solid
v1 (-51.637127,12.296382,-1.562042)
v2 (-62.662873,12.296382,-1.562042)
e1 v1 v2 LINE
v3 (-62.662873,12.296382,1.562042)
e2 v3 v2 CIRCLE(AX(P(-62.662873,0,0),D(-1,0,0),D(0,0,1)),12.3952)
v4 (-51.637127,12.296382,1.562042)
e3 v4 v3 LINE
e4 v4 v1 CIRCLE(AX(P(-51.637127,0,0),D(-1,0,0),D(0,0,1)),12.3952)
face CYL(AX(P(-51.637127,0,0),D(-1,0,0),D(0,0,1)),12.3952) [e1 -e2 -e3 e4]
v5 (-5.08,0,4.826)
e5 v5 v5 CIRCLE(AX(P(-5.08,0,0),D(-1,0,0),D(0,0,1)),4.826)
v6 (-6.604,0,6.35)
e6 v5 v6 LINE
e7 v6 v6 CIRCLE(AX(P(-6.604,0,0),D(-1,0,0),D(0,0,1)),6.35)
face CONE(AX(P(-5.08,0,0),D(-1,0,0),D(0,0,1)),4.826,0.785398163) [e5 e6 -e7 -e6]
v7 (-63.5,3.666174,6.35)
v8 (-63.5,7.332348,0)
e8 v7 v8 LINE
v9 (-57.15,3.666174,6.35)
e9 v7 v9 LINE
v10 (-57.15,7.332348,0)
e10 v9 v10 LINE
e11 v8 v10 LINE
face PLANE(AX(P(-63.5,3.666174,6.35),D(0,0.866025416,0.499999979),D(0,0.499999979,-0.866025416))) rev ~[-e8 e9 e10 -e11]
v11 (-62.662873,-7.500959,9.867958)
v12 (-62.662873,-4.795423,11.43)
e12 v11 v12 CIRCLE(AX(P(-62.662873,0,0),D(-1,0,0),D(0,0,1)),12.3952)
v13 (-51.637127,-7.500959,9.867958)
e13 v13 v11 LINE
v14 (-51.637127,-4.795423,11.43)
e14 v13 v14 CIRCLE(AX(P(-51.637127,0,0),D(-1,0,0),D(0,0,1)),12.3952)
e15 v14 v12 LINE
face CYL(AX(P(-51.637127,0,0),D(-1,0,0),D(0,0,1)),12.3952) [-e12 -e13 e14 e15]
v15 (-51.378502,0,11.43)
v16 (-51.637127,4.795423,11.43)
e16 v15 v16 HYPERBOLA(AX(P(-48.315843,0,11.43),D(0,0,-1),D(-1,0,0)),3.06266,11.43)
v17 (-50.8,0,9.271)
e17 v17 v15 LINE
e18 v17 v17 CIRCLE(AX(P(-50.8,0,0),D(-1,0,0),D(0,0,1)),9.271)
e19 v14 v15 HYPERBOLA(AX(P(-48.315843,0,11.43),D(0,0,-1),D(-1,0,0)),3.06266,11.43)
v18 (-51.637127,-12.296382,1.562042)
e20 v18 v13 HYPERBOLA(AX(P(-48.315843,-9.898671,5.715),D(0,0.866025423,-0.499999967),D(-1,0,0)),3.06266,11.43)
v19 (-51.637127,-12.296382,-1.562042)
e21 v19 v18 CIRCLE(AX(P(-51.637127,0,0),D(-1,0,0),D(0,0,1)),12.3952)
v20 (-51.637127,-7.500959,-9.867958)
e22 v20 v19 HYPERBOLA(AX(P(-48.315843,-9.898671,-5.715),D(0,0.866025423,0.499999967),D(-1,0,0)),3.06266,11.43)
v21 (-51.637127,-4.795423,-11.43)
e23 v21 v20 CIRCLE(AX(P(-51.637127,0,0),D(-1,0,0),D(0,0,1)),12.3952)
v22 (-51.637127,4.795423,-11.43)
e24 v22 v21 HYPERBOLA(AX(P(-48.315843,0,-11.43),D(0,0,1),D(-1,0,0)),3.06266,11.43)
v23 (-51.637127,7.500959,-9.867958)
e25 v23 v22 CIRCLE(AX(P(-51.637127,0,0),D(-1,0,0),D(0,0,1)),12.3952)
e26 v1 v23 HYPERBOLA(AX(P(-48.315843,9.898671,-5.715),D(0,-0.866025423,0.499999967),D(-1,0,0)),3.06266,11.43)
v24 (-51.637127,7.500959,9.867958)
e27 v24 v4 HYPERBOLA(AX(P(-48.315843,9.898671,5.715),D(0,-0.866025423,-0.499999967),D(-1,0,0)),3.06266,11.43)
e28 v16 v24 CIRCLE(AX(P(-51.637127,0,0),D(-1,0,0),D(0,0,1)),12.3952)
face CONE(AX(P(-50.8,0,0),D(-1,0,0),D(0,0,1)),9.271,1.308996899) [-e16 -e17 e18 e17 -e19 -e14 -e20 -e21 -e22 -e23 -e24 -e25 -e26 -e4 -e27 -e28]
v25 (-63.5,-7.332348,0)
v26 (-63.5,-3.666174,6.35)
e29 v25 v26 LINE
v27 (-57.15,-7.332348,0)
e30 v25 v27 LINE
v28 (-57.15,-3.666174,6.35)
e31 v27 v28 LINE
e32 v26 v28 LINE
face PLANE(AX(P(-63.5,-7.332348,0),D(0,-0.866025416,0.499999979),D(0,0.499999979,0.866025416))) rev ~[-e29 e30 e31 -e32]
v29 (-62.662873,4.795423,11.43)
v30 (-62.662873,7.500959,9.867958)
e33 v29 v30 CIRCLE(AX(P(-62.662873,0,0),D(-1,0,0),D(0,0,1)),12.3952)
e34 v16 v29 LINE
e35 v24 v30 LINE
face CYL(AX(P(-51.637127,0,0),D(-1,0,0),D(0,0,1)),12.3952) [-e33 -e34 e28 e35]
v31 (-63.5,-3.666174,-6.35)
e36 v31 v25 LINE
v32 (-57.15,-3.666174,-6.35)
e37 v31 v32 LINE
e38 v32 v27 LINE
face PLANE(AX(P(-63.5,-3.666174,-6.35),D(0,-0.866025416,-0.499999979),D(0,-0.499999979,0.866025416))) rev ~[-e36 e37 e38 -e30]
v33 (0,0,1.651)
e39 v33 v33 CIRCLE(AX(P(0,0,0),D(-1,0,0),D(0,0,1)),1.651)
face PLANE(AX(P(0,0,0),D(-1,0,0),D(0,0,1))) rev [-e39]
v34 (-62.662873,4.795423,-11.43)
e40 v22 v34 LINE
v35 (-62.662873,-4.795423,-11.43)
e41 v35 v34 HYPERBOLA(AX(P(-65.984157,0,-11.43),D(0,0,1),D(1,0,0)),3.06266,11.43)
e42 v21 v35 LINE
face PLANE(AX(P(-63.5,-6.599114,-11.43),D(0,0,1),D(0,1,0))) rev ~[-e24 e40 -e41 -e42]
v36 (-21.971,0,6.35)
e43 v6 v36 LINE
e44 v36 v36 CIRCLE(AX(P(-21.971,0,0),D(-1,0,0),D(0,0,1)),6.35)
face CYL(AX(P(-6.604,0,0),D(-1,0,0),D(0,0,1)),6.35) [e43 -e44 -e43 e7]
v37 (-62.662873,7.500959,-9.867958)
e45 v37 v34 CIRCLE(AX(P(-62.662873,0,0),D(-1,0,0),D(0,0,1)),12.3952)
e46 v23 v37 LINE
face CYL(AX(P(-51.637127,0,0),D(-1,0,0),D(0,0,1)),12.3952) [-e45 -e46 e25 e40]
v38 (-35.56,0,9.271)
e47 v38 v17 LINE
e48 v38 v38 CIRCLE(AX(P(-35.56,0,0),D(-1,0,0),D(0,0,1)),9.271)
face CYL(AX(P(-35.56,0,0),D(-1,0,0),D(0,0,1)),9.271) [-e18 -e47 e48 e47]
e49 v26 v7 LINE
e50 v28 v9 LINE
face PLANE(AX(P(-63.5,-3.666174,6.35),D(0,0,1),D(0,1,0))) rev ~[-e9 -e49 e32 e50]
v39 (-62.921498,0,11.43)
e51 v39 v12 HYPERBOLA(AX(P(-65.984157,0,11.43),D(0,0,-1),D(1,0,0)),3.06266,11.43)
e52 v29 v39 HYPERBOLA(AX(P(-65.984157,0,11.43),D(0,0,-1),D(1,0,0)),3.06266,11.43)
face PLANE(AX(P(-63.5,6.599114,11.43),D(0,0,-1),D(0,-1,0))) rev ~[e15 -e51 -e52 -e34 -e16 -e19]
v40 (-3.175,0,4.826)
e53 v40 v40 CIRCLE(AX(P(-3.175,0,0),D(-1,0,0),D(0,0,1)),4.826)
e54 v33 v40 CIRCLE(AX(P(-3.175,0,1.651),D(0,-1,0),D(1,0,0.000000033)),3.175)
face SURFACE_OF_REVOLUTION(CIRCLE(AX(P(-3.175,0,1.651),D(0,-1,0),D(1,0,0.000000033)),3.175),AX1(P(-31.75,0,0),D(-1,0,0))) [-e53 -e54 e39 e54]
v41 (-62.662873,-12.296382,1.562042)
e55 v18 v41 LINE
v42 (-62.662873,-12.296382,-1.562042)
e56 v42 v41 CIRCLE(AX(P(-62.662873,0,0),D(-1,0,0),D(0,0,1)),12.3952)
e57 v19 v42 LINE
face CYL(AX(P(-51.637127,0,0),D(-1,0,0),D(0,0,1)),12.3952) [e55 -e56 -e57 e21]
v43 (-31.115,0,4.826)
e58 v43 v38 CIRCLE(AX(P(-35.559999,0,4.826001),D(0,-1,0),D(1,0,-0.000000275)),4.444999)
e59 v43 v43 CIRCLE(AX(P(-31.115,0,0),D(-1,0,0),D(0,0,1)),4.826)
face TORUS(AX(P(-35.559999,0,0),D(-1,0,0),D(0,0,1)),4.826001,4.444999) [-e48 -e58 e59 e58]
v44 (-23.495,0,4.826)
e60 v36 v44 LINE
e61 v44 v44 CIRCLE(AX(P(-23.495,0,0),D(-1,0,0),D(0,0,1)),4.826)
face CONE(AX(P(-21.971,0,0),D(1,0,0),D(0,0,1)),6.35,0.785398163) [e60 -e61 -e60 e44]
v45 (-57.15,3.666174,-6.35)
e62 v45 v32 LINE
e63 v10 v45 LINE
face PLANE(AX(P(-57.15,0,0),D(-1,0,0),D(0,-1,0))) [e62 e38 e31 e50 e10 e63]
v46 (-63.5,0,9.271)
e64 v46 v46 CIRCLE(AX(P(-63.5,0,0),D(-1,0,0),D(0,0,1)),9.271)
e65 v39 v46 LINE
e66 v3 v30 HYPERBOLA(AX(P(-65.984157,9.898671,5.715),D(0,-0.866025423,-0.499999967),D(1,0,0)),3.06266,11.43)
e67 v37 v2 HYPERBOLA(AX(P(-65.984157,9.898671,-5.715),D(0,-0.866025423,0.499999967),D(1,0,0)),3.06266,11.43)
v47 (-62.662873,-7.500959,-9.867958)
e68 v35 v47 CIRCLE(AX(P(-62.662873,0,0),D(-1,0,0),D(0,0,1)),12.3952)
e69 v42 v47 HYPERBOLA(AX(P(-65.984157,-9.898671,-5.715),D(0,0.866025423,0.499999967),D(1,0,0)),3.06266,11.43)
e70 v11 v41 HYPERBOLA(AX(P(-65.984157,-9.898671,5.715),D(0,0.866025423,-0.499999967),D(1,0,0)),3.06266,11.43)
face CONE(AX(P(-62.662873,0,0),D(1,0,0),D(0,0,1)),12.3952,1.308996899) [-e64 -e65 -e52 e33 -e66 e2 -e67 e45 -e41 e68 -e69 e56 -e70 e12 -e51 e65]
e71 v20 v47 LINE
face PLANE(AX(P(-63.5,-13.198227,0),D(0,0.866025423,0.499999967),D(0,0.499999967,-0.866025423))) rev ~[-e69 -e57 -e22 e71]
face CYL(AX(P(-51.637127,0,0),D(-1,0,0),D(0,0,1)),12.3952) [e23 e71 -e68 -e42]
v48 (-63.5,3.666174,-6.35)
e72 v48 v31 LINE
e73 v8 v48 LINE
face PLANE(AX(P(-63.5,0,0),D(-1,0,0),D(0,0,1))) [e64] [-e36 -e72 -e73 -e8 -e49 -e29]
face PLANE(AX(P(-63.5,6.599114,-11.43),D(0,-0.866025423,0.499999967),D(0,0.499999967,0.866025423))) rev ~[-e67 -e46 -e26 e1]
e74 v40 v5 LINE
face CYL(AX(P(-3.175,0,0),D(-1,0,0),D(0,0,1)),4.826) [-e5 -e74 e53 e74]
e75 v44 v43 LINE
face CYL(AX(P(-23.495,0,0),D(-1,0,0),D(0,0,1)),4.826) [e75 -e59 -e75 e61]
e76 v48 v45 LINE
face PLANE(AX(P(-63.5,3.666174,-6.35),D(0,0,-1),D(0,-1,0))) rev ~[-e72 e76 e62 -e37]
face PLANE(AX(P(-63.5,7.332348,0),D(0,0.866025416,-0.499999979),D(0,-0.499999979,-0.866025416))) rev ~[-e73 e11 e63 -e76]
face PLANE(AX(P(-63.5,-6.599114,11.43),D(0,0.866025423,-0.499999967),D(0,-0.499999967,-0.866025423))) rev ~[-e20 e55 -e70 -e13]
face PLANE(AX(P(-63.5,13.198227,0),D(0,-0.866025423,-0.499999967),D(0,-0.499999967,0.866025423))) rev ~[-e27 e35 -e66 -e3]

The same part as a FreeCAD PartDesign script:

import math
import FreeCAD as App
import Part
import Sketcher
Q = App.Units.Quantity

doc = App.newDocument("Part")
body = doc.addObject("PartDesign::Body", "Body")

sketch1 = doc.addObject("Sketcher::SketchObject", "Sketch")
body.addObject(sketch1)
sketch1.AttachmentSupport = (doc.XZ_Plane, [""])
sketch1.MapMode = "FlatFace"
sketch1.addGeometry(Part.LineSegment(App.Vector(-63.5, 0, 0), App.Vector(0, 0, 0)), False)
sketch1.addGeometry(Part.LineSegment(App.Vector(0, 0, 0), App.Vector(0, 1.651, 0)), False)
sketch1.addGeometry(Part.ArcOfCircle(Part.Circle(App.Vector(-3.175, 1.651, 0), App.Vector(0, 0, 1), 3.175), math.radians(0.000002), math.radians(89.999998)), False)
sketch1.addGeometry(Part.LineSegment(App.Vector(-3.175, 4.826, 0), App.Vector(-5.08, 4.826, 0)), False)
sketch1.addGeometry(Part.LineSegment(App.Vector(-5.08, 4.826, 0), App.Vector(-6.604, 6.35, 0)), False)
sketch1.addGeometry(Part.LineSegment(App.Vector(-6.604, 6.35, 0), App.Vector(-21.971, 6.35, 0)), False)
sketch1.addGeometry(Part.LineSegment(App.Vector(-21.971, 6.35, 0), App.Vector(-23.495, 4.826, 0)), False)
sketch1.addGeometry(Part.LineSegment(App.Vector(-23.495, 4.826, 0), App.Vector(-31.115, 4.826, 0)), False)
sketch1.addGeometry(Part.ArcOfCircle(Part.Circle(App.Vector(-35.559999, 4.826001, 0), App.Vector(0, 0, 1), 4.444999), math.radians(-0.000016), math.radians(90.000016)), False)
sketch1.addGeometry(Part.LineSegment(App.Vector(-35.56, 9.271, 0), App.Vector(-50.8, 9.271, 0)), False)
sketch1.addGeometry(Part.LineSegment(App.Vector(-50.8, 9.271, 0), App.Vector(-51.637127, 12.3952, 0)), False)
sketch1.addGeometry(Part.LineSegment(App.Vector(-51.637127, 12.3952, 0), App.Vector(-62.662873, 12.3952, 0)), False)
sketch1.addGeometry(Part.LineSegment(App.Vector(-62.662873, 12.3952, 0), App.Vector(-63.5, 9.271, 0)), False)
sketch1.addGeometry(Part.LineSegment(App.Vector(-63.5, 9.271, 0), App.Vector(-63.5, 0, 0)), False)
sketch1.addConstraint(Sketcher.Constraint("Coincident", 0, 2, 1, 1))
sketch1.addConstraint(Sketcher.Constraint("Tangent", 1, 2, 2, 1))
sketch1.addConstraint(Sketcher.Constraint("Tangent", 2, 2, 3, 1))
sketch1.addConstraint(Sketcher.Constraint("Coincident", 3, 2, 4, 1))
sketch1.addConstraint(Sketcher.Constraint("Coincident", 4, 2, 5, 1))
sketch1.addConstraint(Sketcher.Constraint("Coincident", 5, 2, 6, 1))
sketch1.addConstraint(Sketcher.Constraint("Coincident", 6, 2, 7, 1))
sketch1.addConstraint(Sketcher.Constraint("Coincident", 7, 2, 8, 1))
sketch1.addConstraint(Sketcher.Constraint("Tangent", 8, 2, 9, 1))
sketch1.addConstraint(Sketcher.Constraint("Coincident", 9, 2, 10, 1))
sketch1.addConstraint(Sketcher.Constraint("Coincident", 10, 2, 11, 1))
sketch1.addConstraint(Sketcher.Constraint("Coincident", 11, 2, 12, 1))
sketch1.addConstraint(Sketcher.Constraint("Coincident", 12, 2, 13, 1))
sketch1.addConstraint(Sketcher.Constraint("Coincident", 13, 2, 0, 1))
sketch1.addConstraint(Sketcher.Constraint("Horizontal", 0))
sketch1.addConstraint(Sketcher.Constraint("Vertical", 1))
sketch1.addConstraint(Sketcher.Constraint("Horizontal", 3))
sketch1.addConstraint(Sketcher.Constraint("Horizontal", 5))
sketch1.addConstraint(Sketcher.Constraint("Horizontal", 7))
sketch1.addConstraint(Sketcher.Constraint("Horizontal", 9))
sketch1.addConstraint(Sketcher.Constraint("Horizontal", 11))
sketch1.addConstraint(Sketcher.Constraint("Vertical", 13))
sketch1.addConstraint(Sketcher.Constraint("Coincident", 0, 2, -1, 1))
sketch1.addConstraint(Sketcher.Constraint("Perpendicular", 4, 6))
sketch1.addConstraint(Sketcher.Constraint("Horizontal", 8, 3, 2, 2))
sketch1.addConstraint(Sketcher.Constraint("Horizontal", 3, 2, 6, 2))
sketch1.addConstraint(Sketcher.Constraint("Horizontal", 9, 2, 12, 2))
sketch1.addConstraint(Sketcher.Constraint("Equal", 4, 6))
sketch1.addConstraint(Sketcher.Constraint("Equal", 10, 12))
sketch1.addConstraint(Sketcher.Constraint("DistanceX", 0, 1, 0, 2, Q("2.5 in")))
sketch1.addConstraint(Sketcher.Constraint("DistanceX", 7, 2, 7, 1, Q("0.3 in")))
sketch1.addConstraint(Sketcher.Constraint("DistanceX", 9, 2, 9, 1, Q("0.6 in")))
sketch1.addConstraint(Sketcher.Constraint("DistanceX", 9, 2, -1, 1, Q("2 in")))
sketch1.addConstraint(Sketcher.Constraint("Angle", 10, Q("105.000002 deg")))
sketch1.addConstraint(Sketcher.Constraint("Radius", 2, Q("0.125 in")))
sketch1.addConstraint(Sketcher.Constraint("Radius", 8, Q("0.175 in")))
sketch1.addConstraint(Sketcher.Constraint("DistanceX", 3, 2, -1, 1, Q("0.2 in")))
sketch1.addConstraint(Sketcher.Constraint("DistanceX", 5, 2, 5, 1, Q("0.605 in")))
sketch1.addConstraint(Sketcher.Constraint("DistanceY", 1, 1, 1, 2, Q("0.065 in")))
sketch1.addConstraint(Sketcher.Constraint("DistanceY", -1, 1, 10, 2, Q("0.488 in")))
revolution = doc.addObject("PartDesign::Revolution", "Revolution")
body.addObject(revolution)
revolution.Profile = sketch1
revolution.ReferenceAxis = (sketch1, ["H_Axis"])
revolution.Angle = 360

sketch2 = doc.addObject("Sketcher::SketchObject", "Sketch001")
body.addObject(sketch2)
sketch2.AttachmentSupport = (doc.YZ_Plane, [""])
sketch2.MapMode = "FlatFace"
sketch2.AttachmentOffset = App.Placement(App.Vector(0, 0, -2.5 * 25.4), App.Rotation())
sketch2.addGeometry(Part.LineSegment(App.Vector(-3.666174, 6.35, 0), App.Vector(3.666174, 6.35, 0)), False)
sketch2.addGeometry(Part.LineSegment(App.Vector(3.666174, 6.35, 0), App.Vector(7.332348, 0, 0)), False)
sketch2.addGeometry(Part.LineSegment(App.Vector(7.332348, 0, 0), App.Vector(3.666174, -6.35, 0)), False)
sketch2.addGeometry(Part.LineSegment(App.Vector(3.666174, -6.35, 0), App.Vector(-3.666174, -6.35, 0)), False)
sketch2.addGeometry(Part.LineSegment(App.Vector(-3.666174, -6.35, 0), App.Vector(-7.332348, 0, 0)), False)
sketch2.addGeometry(Part.LineSegment(App.Vector(-7.332348, 0, 0), App.Vector(-3.666174, 6.35, 0)), False)
sketch2.addConstraint(Sketcher.Constraint("Coincident", 0, 2, 1, 1))
sketch2.addConstraint(Sketcher.Constraint("Coincident", 1, 2, 2, 1))
sketch2.addConstraint(Sketcher.Constraint("Coincident", 2, 2, 3, 1))
sketch2.addConstraint(Sketcher.Constraint("Coincident", 3, 2, 4, 1))
sketch2.addConstraint(Sketcher.Constraint("Coincident", 4, 2, 5, 1))
sketch2.addConstraint(Sketcher.Constraint("Coincident", 5, 2, 0, 1))
sketch2.addConstraint(Sketcher.Constraint("Horizontal", 0))
sketch2.addConstraint(Sketcher.Constraint("Horizontal", 3))
sketch2.addConstraint(Sketcher.Constraint("Symmetric", 0, 2, 3, 2, -1, 1))
sketch2.addConstraint(Sketcher.Constraint("Symmetric", 1, 2, 4, 2, -1, 1))
sketch2.addConstraint(Sketcher.Constraint("PointOnObject", 1, 2, -1))
sketch2.addConstraint(Sketcher.Constraint("Parallel", 2, 5))
sketch2.addConstraint(Sketcher.Constraint("Vertical", 0, 2, 2, 2))
sketch2.addConstraint(Sketcher.Constraint("Angle", 1, Q("-60.000001 deg")))
sketch2.addConstraint(Sketcher.Constraint("DistanceY", 2, 2, 0, 2, Q("0.5 in")))
sketch2.addConstraint(Sketcher.Constraint("DistanceX", 0, 1, 0, 2, 7.332348))
pocket1 = doc.addObject("PartDesign::Pocket", "Pocket")
body.addObject(pocket1)
pocket1.Profile = sketch2
pocket1.Length = Q("0.25 in")
pocket1.Reversed = True

sketch3 = doc.addObject("Sketcher::SketchObject", "Sketch002")
body.addObject(sketch3)
sketch3.AttachmentSupport = (doc.YZ_Plane, [""])
sketch3.MapMode = "FlatFace"
sketch3.AttachmentOffset = App.Placement(App.Vector(0, 0, -2.5 * 25.4), App.Rotation())
sketch3.addGeometry(Part.Circle(App.Vector(0, 0, 0), App.Vector(0, 0, 1), 15.610651), False)
sketch3.addGeometry(Part.LineSegment(App.Vector(6.599114, -11.43, 0), App.Vector(13.198227, 0, 0)), False)
sketch3.addGeometry(Part.LineSegment(App.Vector(13.198227, 0, 0), App.Vector(6.599114, 11.43, 0)), False)
sketch3.addGeometry(Part.LineSegment(App.Vector(6.599114, 11.43, 0), App.Vector(-6.599114, 11.43, 0)), False)
sketch3.addGeometry(Part.LineSegment(App.Vector(-6.599114, 11.43, 0), App.Vector(-13.198227, 0, 0)), False)
sketch3.addGeometry(Part.LineSegment(App.Vector(-13.198227, 0, 0), App.Vector(-6.599114, -11.43, 0)), False)
sketch3.addGeometry(Part.LineSegment(App.Vector(-6.599114, -11.43, 0), App.Vector(6.599114, -11.43, 0)), False)
sketch3.addConstraint(Sketcher.Constraint("Coincident", 1, 2, 2, 1))
sketch3.addConstraint(Sketcher.Constraint("Coincident", 2, 2, 3, 1))
sketch3.addConstraint(Sketcher.Constraint("Coincident", 3, 2, 4, 1))
sketch3.addConstraint(Sketcher.Constraint("Coincident", 4, 2, 5, 1))
sketch3.addConstraint(Sketcher.Constraint("Coincident", 5, 2, 6, 1))
sketch3.addConstraint(Sketcher.Constraint("Coincident", 6, 2, 1, 1))
sketch3.addConstraint(Sketcher.Constraint("Horizontal", 3))
sketch3.addConstraint(Sketcher.Constraint("Horizontal", 6))
sketch3.addConstraint(Sketcher.Constraint("Coincident", 0, 3, -1, 1))
sketch3.addConstraint(Sketcher.Constraint("Symmetric", 1, 2, 4, 2, -1, 1))
sketch3.addConstraint(Sketcher.Constraint("Symmetric", 2, 2, 5, 2, -1, 1))
sketch3.addConstraint(Sketcher.Constraint("PointOnObject", 1, 2, -1))
sketch3.addConstraint(Sketcher.Constraint("Parallel", 1, 4))
sketch3.addConstraint(Sketcher.Constraint("Vertical", 3, 2, 5, 2))
sketch3.addConstraint(Sketcher.Constraint("Angle", 1, Q("60.000002 deg")))
sketch3.addConstraint(Sketcher.Constraint("DistanceY", 5, 2, 3, 2, Q("0.9 in")))
sketch3.addConstraint(Sketcher.Constraint("Diameter", 0, 31.221302))
sketch3.addConstraint(Sketcher.Constraint("DistanceX", 3, 2, 3, 1, 13.198228))
pocket2 = doc.addObject("PartDesign::Pocket", "Pocket001")
body.addObject(pocket2)
pocket2.Profile = sketch3
pocket2.Length = Q("1 in")
pocket2.Reversed = True

doc.recompute()
